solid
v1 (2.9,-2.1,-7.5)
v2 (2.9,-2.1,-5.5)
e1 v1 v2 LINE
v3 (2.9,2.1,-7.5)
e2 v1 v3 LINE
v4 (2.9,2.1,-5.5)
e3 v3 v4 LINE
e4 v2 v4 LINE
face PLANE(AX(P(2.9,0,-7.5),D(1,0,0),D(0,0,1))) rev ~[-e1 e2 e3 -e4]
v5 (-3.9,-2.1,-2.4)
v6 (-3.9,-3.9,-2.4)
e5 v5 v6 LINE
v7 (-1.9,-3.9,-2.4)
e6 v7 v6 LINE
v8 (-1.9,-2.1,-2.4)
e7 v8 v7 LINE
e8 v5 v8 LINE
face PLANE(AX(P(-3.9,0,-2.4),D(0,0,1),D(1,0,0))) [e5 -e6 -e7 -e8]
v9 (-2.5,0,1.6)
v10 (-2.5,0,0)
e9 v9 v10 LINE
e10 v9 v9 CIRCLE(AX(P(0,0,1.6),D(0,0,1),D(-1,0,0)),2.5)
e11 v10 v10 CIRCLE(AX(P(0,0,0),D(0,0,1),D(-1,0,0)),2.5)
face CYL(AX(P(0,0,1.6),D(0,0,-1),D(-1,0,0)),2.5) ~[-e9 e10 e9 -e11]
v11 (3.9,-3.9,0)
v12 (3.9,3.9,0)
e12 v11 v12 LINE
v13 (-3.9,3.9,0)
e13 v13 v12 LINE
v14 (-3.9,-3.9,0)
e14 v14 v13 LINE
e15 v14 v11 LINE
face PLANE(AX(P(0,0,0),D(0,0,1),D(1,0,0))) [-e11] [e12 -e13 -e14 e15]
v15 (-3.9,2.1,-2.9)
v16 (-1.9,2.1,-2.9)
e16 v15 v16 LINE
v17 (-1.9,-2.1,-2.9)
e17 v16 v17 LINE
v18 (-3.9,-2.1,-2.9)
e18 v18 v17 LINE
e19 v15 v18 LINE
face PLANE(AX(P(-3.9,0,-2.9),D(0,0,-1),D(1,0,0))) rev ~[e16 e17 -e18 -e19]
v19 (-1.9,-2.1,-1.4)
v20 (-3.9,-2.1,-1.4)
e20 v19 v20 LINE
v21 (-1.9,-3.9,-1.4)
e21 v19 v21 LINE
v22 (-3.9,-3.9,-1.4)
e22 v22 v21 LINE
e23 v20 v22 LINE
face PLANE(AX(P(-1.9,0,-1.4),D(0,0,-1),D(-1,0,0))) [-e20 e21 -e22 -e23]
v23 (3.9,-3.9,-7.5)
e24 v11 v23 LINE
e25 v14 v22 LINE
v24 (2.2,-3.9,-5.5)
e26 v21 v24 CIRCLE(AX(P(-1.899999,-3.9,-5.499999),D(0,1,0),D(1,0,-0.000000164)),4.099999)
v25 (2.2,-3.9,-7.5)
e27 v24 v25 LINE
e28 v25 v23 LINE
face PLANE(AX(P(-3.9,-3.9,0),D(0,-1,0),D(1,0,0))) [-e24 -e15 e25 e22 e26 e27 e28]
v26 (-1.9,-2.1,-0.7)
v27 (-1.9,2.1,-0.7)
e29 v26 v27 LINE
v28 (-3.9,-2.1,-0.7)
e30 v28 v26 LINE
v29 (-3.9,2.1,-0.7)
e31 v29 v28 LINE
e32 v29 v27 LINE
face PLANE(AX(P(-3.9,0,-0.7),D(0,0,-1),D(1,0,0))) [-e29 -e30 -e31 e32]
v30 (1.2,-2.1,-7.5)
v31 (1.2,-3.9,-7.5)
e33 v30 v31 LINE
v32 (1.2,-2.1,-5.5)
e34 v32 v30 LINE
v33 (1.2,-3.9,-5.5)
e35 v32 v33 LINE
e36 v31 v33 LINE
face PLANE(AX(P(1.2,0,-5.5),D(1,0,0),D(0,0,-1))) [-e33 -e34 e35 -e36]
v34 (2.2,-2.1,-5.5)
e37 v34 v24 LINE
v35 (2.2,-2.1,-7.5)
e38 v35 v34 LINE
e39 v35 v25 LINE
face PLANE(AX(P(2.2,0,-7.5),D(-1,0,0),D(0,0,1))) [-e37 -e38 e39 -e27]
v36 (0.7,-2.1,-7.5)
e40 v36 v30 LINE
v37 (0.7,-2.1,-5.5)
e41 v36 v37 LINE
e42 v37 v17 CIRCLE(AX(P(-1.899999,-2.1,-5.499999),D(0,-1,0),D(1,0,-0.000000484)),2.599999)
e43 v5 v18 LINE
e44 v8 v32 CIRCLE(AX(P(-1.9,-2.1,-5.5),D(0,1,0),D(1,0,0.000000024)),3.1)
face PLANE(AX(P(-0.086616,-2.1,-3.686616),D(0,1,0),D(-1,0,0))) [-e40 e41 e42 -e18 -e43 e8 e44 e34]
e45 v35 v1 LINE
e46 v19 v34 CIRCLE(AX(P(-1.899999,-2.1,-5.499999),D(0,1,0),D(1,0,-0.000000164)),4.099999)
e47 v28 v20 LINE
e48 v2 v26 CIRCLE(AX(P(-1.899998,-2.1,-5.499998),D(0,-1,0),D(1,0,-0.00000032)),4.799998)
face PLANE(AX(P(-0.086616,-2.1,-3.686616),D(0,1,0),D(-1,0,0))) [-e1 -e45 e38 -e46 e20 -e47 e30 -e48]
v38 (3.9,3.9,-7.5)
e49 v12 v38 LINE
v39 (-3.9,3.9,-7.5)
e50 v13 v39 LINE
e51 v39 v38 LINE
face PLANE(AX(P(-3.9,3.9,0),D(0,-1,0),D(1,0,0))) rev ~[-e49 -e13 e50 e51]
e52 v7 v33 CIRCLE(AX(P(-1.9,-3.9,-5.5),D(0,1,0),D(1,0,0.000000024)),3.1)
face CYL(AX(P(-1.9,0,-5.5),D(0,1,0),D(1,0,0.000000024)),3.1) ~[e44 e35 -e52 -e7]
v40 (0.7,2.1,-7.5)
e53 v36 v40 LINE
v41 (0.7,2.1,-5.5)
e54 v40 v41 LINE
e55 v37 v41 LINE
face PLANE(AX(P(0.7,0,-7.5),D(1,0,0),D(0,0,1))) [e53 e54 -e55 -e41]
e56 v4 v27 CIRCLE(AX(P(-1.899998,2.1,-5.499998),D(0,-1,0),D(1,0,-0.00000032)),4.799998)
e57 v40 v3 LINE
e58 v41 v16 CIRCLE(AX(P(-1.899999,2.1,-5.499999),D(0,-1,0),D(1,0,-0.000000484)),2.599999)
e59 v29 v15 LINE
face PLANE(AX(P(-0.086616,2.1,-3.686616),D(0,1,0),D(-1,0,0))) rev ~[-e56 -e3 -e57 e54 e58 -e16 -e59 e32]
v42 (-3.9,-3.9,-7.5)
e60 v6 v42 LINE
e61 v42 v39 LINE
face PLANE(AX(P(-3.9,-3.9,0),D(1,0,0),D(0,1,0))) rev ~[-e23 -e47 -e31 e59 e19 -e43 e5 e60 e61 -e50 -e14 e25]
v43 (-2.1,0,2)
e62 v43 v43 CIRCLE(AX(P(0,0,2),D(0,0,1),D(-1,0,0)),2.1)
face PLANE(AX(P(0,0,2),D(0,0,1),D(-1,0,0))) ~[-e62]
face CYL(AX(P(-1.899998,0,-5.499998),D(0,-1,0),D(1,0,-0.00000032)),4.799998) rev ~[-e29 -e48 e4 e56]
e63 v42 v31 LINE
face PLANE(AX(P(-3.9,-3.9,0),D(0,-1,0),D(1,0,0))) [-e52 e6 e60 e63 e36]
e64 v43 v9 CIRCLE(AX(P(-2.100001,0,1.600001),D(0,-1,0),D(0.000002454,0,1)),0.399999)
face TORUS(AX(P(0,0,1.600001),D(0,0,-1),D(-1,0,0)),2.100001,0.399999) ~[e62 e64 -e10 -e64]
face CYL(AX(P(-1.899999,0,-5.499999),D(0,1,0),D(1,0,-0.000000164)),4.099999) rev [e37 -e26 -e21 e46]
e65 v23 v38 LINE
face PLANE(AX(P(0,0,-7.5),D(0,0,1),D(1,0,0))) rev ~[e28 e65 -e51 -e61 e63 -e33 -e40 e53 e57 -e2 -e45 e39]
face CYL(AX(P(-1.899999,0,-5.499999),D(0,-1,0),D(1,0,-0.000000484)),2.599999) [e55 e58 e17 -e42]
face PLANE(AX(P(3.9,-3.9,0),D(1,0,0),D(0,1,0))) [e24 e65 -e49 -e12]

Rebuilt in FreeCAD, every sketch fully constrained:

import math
import FreeCAD as App
import Part
import Sketcher

V = App.Vector


def add_polygon(sketch, points):
    """Adds a closed chain of lines whose ends are joined by coincident constraints."""
    first, n = sketch.GeometryCount, len(points)
    for a, b in zip(points, points[1:] + points[:1]):
        sketch.addGeometry(Part.LineSegment(App.Vector(*a, 0), App.Vector(*b, 0)), False)
    for i in range(n):
        sketch.addConstraint(Sketcher.Constraint("Coincident", first + i, 2, first + (i + 1) % n, 1))

doc = App.newDocument("Part")
body = doc.addObject("PartDesign::Body", "Body")

# Sketch on XZ plane
sketch1 = doc.addObject("Sketcher::SketchObject", "Sketch")
body.addObject(sketch1)
sketch1.AttachmentSupport = (doc.XZ_Plane, [""])
sketch1.MapMode = "FlatFace"
sketch1.addGeometry([
    Part.LineSegment(V(0, 0, 0), V(0, 2, 0)),  # 0
    Part.LineSegment(V(0, 2, 0), V(-2.1, 2, 0)),  # 1
    Part.ArcOfCircle(Part.Circle(V(-2.1, 1.6, 0), V(0, 0, 1), 0.4), math.radians(90), math.radians(180)),  # 2
    Part.LineSegment(V(-2.5, 1.6, 0), V(-2.5, 0, 0)),  # 3
    Part.LineSegment(V(-2.5, 0, 0), V(0, 0, 0)),  # 4
], False)
sketch1.addConstraint([
    Sketcher.Constraint("Coincident", 0, 2, 1, 1),
    Sketcher.Constraint("Coincident", 1, 2, 2, 1),
    Sketcher.Constraint("Coincident", 2, 2, 3, 1),
    Sketcher.Constraint("Coincident", 3, 2, 4, 1),
    Sketcher.Constraint("Coincident", 4, 2, 0, 1),
    Sketcher.Constraint("Vertical", 0),
    Sketcher.Constraint("Horizontal", 1),
    Sketcher.Constraint("Vertical", 3),
    Sketcher.Constraint("Horizontal", 4),
    Sketcher.Constraint("Coincident", 4, 2, -1, 1),
    Sketcher.Constraint("Vertical", 2, 3, 1, 2),
    Sketcher.Constraint("Radius", 2, 0.399999),
    Sketcher.Constraint("DistanceY", 0, 1, 0, 2, 2.0),
    Sketcher.Constraint("DistanceX", 1, 2, 1, 1, 2.1),
    Sketcher.Constraint("DistanceY", 3, 2, 3, 1, 1.6),
])
revolution = doc.addObject("PartDesign::Revolution", "Revolution")
body.addObject(revolution)
revolution.Profile = sketch1
revolution.ReferenceAxis = (sketch1, ["V_Axis"])
revolution.Angle = 360

# Sketch on XY plane
sketch2 = doc.addObject("Sketcher::SketchObject", "Sketch001")
body.addObject(sketch2)
sketch2.AttachmentSupport = (doc.XY_Plane, [""])
sketch2.MapMode = "FlatFace"
add_polygon(sketch2, [(-4, 4), (-4, -4), (4, -4), (4, 4)])  # lines 0-3
sketch2.addConstraint([
    Sketcher.Constraint("Vertical", 0),
    Sketcher.Constraint("Horizontal", 1),
    Sketcher.Constraint("Vertical", 2),
    Sketcher.Constraint("Horizontal", 3),
    Sketcher.Constraint("Symmetric", 0, 2, 2, 2, -1, 1),
    Sketcher.Constraint("Equal", 3, 0),
    Sketcher.Constraint("DistanceX", 1, 1, 1, 2, 7.8),
])
pad1 = doc.addObject("PartDesign::Pad", "Pad")
body.addObject(pad1)
pad1.Profile = sketch2
pad1.Length = 7.5
pad1.Reversed = True

# Sketch on XZ plane
sketch3 = doc.addObject("Sketcher::SketchObject", "Sketch002")
body.addObject(sketch3)
sketch3.AttachmentSupport = (doc.XZ_Plane, [""])
sketch3.MapMode = "FlatFace"
sketch3.addGeometry([
    Part.LineSegment(V(-1.9, -0.7, 0), V(-3.9, -0.7, 0)),  # 0
    Part.LineSegment(V(-3.9, -0.7, 0), V(-3.9, -2.9, 0)),  # 1
    Part.LineSegment(V(-3.9, -2.9, 0), V(-1.9, -2.9, 0)),  # 2
    Part.ArcOfCircle(Part.Circle(V(-1.9, -5.5, 0), V(0, 0, 1), 2.6), math.radians(0), math.radians(90)),  # 3
    Part.LineSegment(V(0.7, -5.5, 0), V(0.7, -7.5, 0)),  # 4
    Part.LineSegment(V(0.7, -7.5, 0), V(2.9, -7.5, 0)),  # 5
    Part.LineSegment(V(2.9, -7.5, 0), V(2.9, -5.5, 0)),  # 6
    Part.ArcOfCircle(Part.Circle(V(-1.9, -5.5, 0), V(0, 0, 1), 4.8), math.radians(0), math.radians(90)),  # 7
], False)
sketch3.addConstraint([
    Sketcher.Constraint("Coincident", 0, 2, 1, 1),
    Sketcher.Constraint("Coincident", 1, 2, 2, 1),
    Sketcher.Constraint("Tangent", 2, 2, 3, 2),
    Sketcher.Constraint("Tangent", 3, 1, 4, 1),
    Sketcher.Constraint("Coincident", 4, 2, 5, 1),
    Sketcher.Constraint("Coincident", 5, 2, 6, 1),
    Sketcher.Constraint("Tangent", 6, 2, 7, 1),
    Sketcher.Constraint("Tangent", 7, 2, 0, 1),
    Sketcher.Constraint("Horizontal", 0),
    Sketcher.Constraint("Vertical", 1),
    Sketcher.Constraint("Horizontal", 2),
    Sketcher.Constraint("Vertical", 4),
    Sketcher.Constraint("Horizontal", 5),
    Sketcher.Constraint("Vertical", 6),
    Sketcher.Constraint("Coincident", 7, 3, 3, 3),
    Sketcher.Constraint("Equal", 2, 4),
    Sketcher.Constraint("Radius", 3, 2.599999),
    Sketcher.Constraint("Radius", 7, 4.799998),
    Sketcher.Constraint("DistanceX", 0, 2, 0, 1, 2.0),
    Sketcher.Constraint("DistanceX", 3, 3, -1, 1, 1.899999),
    Sketcher.Constraint("DistanceY", 3, 3, -1, 1, 5.499999),
])
pocket1 = doc.addObject("PartDesign::Pocket", "Pocket")
body.addObject(pocket1)
pocket1.Profile = sketch3
pocket1.Length = 4.2
pocket1.Midplane = True

# Sketch on XZ plane
sketch4 = doc.addObject("Sketcher::SketchObject", "Sketch003")
body.addObject(sketch4)
sketch4.AttachmentSupport = (doc.XZ_Plane, [""])
sketch4.MapMode = "FlatFace"
sketch4.addGeometry([
    Part.LineSegment(V(-1.9, -1.4, 0), V(-3.9, -1.4, 0)),  # 0
    Part.LineSegment(V(-3.9, -1.4, 0), V(-3.9, -2.4, 0)),  # 1
    Part.LineSegment(V(-3.9, -2.4, 0), V(-1.9, -2.4, 0)),  # 2
    Part.ArcOfCircle(Part.Circle(V(-1.9, -5.5, 0), V(0, 0, 1), 3.1), math.radians(0), math.radians(90)),  # 3
    Part.LineSegment(V(1.2, -5.5, 0), V(1.2, -7.5, 0)),  # 4
    Part.LineSegment(V(1.2, -7.5, 0), V(2.2, -7.5, 0)),  # 5
    Part.LineSegment(V(2.2, -7.5, 0), V(2.2, -5.5, 0)),  # 6
    Part.ArcOfCircle(Part.Circle(V(-1.9, -5.5, 0), V(0, 0, 1), 4.1), math.radians(0), math.radians(90)),  # 7
], False)
sketch4.addConstraint([
    Sketcher.Constraint("Coincident", 0, 2, 1, 1),
    Sketcher.Constraint("Coincident", 1, 2, 2, 1),
    Sketcher.Constraint("Tangent", 2, 2, 3, 2),
    Sketcher.Constraint("Tangent", 3, 1, 4, 1),
    Sketcher.Constraint("Coincident", 4, 2, 5, 1),
    Sketcher.Constraint("Coincident", 5, 2, 6, 1),
    Sketcher.Constraint("Tangent", 6, 2, 7, 1),
    Sketcher.Constraint("Tangent", 7, 2, 0, 1),
    Sketcher.Constraint("Horizontal", 0),
    Sketcher.Constraint("Vertical", 1),
    Sketcher.Constraint("Horizontal", 2),
    Sketcher.Constraint("Vertical", 4),
    Sketcher.Constraint("Horizontal", 5),
    Sketcher.Constraint("Vertical", 6),
    Sketcher.Constraint("Coincident", 7, 3, 3, 3),
    Sketcher.Constraint("Equal", 2, 4),
    Sketcher.Constraint("Radius", 3, 3.1),
    Sketcher.Constraint("Radius", 7, 4.099999),
    Sketcher.Constraint("DistanceX", 0, 2, 0, 1, 2.0),
    Sketcher.Constraint("DistanceX", 3, 3, -1, 1, 1.9),
    Sketcher.Constraint("DistanceY", 3, 3, -1, 1, 5.5),
])
pocket2 = doc.addObject("PartDesign::Pocket", "Pocket001")
body.addObject(pocket2)
pocket2.Profile = sketch4
pocket2.Length = 5
pocket2.Reversed = True

doc.recompute()
